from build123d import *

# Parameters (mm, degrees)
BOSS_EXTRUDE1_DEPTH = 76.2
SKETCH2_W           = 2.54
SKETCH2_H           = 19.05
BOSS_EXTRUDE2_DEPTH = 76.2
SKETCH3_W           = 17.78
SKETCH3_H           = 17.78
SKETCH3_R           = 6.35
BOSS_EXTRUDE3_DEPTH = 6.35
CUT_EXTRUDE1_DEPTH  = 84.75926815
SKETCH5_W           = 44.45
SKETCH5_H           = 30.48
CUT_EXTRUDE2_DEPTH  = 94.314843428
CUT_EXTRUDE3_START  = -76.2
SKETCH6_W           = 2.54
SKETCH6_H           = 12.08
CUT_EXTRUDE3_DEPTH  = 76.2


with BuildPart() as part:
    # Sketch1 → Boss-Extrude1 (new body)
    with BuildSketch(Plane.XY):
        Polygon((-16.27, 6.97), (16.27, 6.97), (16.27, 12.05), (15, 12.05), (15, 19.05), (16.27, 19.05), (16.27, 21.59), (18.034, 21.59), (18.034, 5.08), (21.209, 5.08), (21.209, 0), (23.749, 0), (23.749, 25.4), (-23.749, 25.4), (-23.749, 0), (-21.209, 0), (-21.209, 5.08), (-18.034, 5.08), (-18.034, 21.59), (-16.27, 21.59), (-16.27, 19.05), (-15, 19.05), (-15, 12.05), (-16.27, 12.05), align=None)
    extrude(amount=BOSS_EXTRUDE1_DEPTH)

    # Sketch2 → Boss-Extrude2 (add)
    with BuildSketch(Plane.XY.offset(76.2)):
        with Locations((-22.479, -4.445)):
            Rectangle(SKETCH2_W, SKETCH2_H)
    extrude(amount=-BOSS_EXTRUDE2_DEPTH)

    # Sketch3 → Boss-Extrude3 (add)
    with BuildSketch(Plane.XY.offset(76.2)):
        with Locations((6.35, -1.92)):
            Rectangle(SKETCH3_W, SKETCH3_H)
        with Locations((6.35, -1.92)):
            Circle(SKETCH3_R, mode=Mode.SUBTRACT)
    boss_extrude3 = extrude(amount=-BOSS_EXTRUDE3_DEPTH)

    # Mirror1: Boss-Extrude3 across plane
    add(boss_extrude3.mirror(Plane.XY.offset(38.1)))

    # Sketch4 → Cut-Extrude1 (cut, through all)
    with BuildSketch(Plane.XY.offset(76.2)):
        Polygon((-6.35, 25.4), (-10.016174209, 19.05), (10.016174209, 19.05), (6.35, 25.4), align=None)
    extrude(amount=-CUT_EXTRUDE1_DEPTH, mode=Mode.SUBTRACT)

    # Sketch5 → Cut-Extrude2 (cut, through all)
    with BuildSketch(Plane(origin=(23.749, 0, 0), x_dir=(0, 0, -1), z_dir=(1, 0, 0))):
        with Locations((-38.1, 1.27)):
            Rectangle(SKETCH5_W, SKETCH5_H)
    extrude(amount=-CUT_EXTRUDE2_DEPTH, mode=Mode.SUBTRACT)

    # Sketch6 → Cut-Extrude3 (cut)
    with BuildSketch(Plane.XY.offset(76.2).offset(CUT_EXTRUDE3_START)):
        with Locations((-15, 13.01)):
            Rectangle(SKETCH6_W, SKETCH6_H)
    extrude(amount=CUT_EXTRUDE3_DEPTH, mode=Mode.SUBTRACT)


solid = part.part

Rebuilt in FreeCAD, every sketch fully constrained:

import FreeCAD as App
import Part
import Sketcher
Q = App.Units.Quantity

doc = App.newDocument("Part")
params = doc.addObject("Spreadsheet::Sheet", "Params")
for row, (alias, value) in enumerate([
    ("sketch1_height", "1 in"),
    ("sketch1_width", "0.1 in"),
    ("sketch1_height2", "0.2 in"),
    ("sketch1_width2", "0.05 in"),
    ("sketch1_width3", "1.87 in"),
    ("pad1_length", "3 in"),
    ("sketch2_width", "0.1 in"),
    ("sketch2_height", "0.75 in"),
    ("pad2_length", "3 in"),
    ("sketch3_diameter", "0.5 in"),
    ("sketch3_width", "0.7 in"),
    ("pad3_length", "0.25 in"),
    ("sketch4_width", "0.5 in"),
    ("sketch5_width", "1.2 in"),
    ("sketch5_height", "1.75 in"),
    ("sketch6_width", "0.1 in"),
    ("pocket3_length", "3 in"),
], start=1):
    params.set(f"A{row}", alias)
    params.set(f"B{row}", "=" + value)
    params.setAlias(f"B{row}", alias)

body = doc.addObject("PartDesign::Body", "Body")

# Sketch on XY plane
sketch1 = body.newObject("Sketcher::SketchObject", "Sketch")
sketch1.AttachmentSupport = (doc.getObject("XY_Plane"), [""])
sketch1.MapMode = "FlatFace"
sketch1.addGeometry([
    Part.LineSegment(App.Vector(-16.3, 7, 0), App.Vector(16.3, 7, 0)),  # 0
    Part.LineSegment(App.Vector(16.3, 7, 0), App.Vector(16.3, 12.1, 0)),  # 1
    Part.LineSegment(App.Vector(16.3, 12.1, 0), App.Vector(15, 12.1, 0)),  # 2
    Part.LineSegment(App.Vector(15, 12.1, 0), App.Vector(15, 19.1, 0)),  # 3
    Part.LineSegment(App.Vector(15, 19.1, 0), App.Vector(16.3, 19.1, 0)),  # 4
    Part.LineSegment(App.Vector(16.3, 19.1, 0), App.Vector(16.3, 21.6, 0)),  # 5
    Part.LineSegment(App.Vector(16.3, 21.6, 0), App.Vector(18, 21.6, 0)),  # 6
    Part.LineSegment(App.Vector(18, 21.6, 0), App.Vector(18, 5.1, 0)),  # 7
    Part.LineSegment(App.Vector(18, 5.1, 0), App.Vector(21.2, 5.1, 0)),  # 8
    Part.LineSegment(App.Vector(21.2, 5.1, 0), App.Vector(21.2, 0, 0)),  # 9
    Part.LineSegment(App.Vector(21.2, 0, 0), App.Vector(23.7, 0, 0)),  # 10
    Part.LineSegment(App.Vector(23.7, 0, 0), App.Vector(23.7, 25.4, 0)),  # 11
    Part.LineSegment(App.Vector(23.7, 25.4, 0), App.Vector(-23.7, 25.4, 0)),  # 12
    Part.LineSegment(App.Vector(-23.7, 25.4, 0), App.Vector(-23.7, 0, 0)),  # 13
    Part.LineSegment(App.Vector(-23.7, 0, 0), App.Vector(-21.2, 0, 0)),  # 14
    Part.LineSegment(App.Vector(-21.2, 0, 0), App.Vector(-21.2, 5.1, 0)),  # 15
    Part.LineSegment(App.Vector(-21.2, 5.1, 0), App.Vector(-18, 5.1, 0)),  # 16
    Part.LineSegment(App.Vector(-18, 5.1, 0), App.Vector(-18, 21.6, 0)),  # 17
    Part.LineSegment(App.Vector(-18, 21.6, 0), App.Vector(-16.3, 21.6, 0)),  # 18
    Part.LineSegment(App.Vector(-16.3, 21.6, 0), App.Vector(-16.3, 19.1, 0)),  # 19
    Part.LineSegment(App.Vector(-16.3, 19.1, 0), App.Vector(-15, 19.1, 0)),  # 20
    Part.LineSegment(App.Vector(-15, 19.1, 0), App.Vector(-15, 12.1, 0)),  # 21
    Part.LineSegment(App.Vector(-15, 12.1, 0), App.Vector(-16.3, 12.1, 0)),  # 22
    Part.LineSegment(App.Vector(-16.3, 12.1, 0), App.Vector(-16.3, 7, 0)),  # 23
], False)
sketch1.addConstraint([
    Sketcher.Constraint("Coincident", 0, 2, 1, 1),
    Sketcher.Constraint("Coincident", 1, 2, 2, 1),
    Sketcher.Constraint("Coincident", 2, 2, 3, 1),
    Sketcher.Constraint("Coincident", 3, 2, 4, 1),
    Sketcher.Constraint("Coincident", 4, 2, 5, 1),
    Sketcher.Constraint("Coincident", 5, 2, 6, 1),
    Sketcher.Constraint("Coincident", 6, 2, 7, 1),
    Sketcher.Constraint("Coincident", 7, 2, 8, 1),
    Sketcher.Constraint("Coincident", 8, 2, 9, 1),
    Sketcher.Constraint("Coincident", 9, 2, 10, 1),
    Sketcher.Constraint("Coincident", 10, 2, 11, 1),
    Sketcher.Constraint("Coincident", 11, 2, 12, 1),
    Sketcher.Constraint("Coincident", 12, 2, 13, 1),
    Sketcher.Constraint("Coincident", 13, 2, 14, 1),
    Sketcher.Constraint("Coincident", 14, 2, 15, 1),
    Sketcher.Constraint("Coincident", 15, 2, 16, 1),
    Sketcher.Constraint("Coincident", 16, 2, 17, 1),
    Sketcher.Constraint("Coincident", 17, 2, 18, 1),
    Sketcher.Constraint("Coincident", 18, 2, 19, 1),
    Sketcher.Constraint("Coincident", 19, 2, 20, 1),
    Sketcher.Constraint("Coincident", 20, 2, 21, 1),
    Sketcher.Constraint("Coincident", 21, 2, 22, 1),
    Sketcher.Constraint("Coincident", 22, 2, 23, 1),
    Sketcher.Constraint("Coincident", 23, 2, 0, 1),
    Sketcher.Constraint("Horizontal", 0),
    Sketcher.Constraint("Vertical", 1),
    Sketcher.Constraint("Horizontal", 2),
    Sketcher.Constraint("Vertical", 3),
    Sketcher.Constraint("Horizontal", 4),
    Sketcher.Constraint("Vertical", 5),
    Sketcher.Constraint("Horizontal", 6),
    Sketcher.Constraint("Vertical", 7),
    Sketcher.Constraint("Horizontal", 8),
    Sketcher.Constraint("Vertical", 9),
    Sketcher.Constraint("Horizontal", 10),
    Sketcher.Constraint("Vertical", 11),
    Sketcher.Constraint("Horizontal", 12),
    Sketcher.Constraint("Vertical", 13),
    Sketcher.Constraint("Horizontal", 14),
    Sketcher.Constraint("Vertical", 15),
    Sketcher.Constraint("Horizontal", 16),
    Sketcher.Constraint("Vertical", 17),
    Sketcher.Constraint("Horizontal", 18),
    Sketcher.Constraint("Vertical", 19),
    Sketcher.Constraint("Horizontal", 20),
    Sketcher.Constraint("Vertical", 21),
    Sketcher.Constraint("Horizontal", 22),
    Sketcher.Constraint("Vertical", 23),
    Sketcher.Constraint("Symmetric", 10, 2, 13, 2, -1, 1),
    Sketcher.Constraint("Symmetric", 9, 2, 14, 2, -2),
    Sketcher.Constraint("Symmetric", 7, 2, 16, 2, -2),
    Sketcher.Constraint("Symmetric", 5, 2, 18, 2, -2),
    Sketcher.Constraint("Symmetric", 3, 2, 20, 2, -2),
    Sketcher.Constraint("Symmetric", 1, 2, 22, 2, -2),
    Sketcher.Constraint("Vertical", 1, 2, 4, 2),
    Sketcher.Constraint("Equal", 14, 5),
    Sketcher.Constraint("Equal", 1, 9),
    Sketcher.Constraint("DistanceY", 11, 1, 11, 2, Q("1 in")),
    Sketcher.Constraint("DistanceX", 10, 1, 10, 2, Q("0.1 in")),
    Sketcher.Constraint("DistanceY", 1, 1, 1, 2, Q("0.2 in")),
    Sketcher.Constraint("DistanceX", 2, 2, 2, 1, Q("0.05 in")),
    Sketcher.Constraint("DistanceX", 12, 2, 12, 1, Q("1.87 in")),
    Sketcher.Constraint("DistanceY", 7, 2, 7, 1, Q("0.65 in")),
    Sketcher.Constraint("DistanceX", 8, 1, 8, 2, Q("0.125 in")),
    Sketcher.Constraint("DistanceX", 0, 1, 0, 2, Q("32.54 mm")),
    Sketcher.Constraint("DistanceY", 3, 1, 3, 2, Q("7 mm")),
])
sketch1.setExpression("Constraints[57]", "Params.sketch1_height")
sketch1.setExpression("Constraints[58]", "Params.sketch1_width")
sketch1.setExpression("Constraints[59]", "Params.sketch1_height2")
sketch1.setExpression("Constraints[60]", "Params.sketch1_width2")
sketch1.setExpression("Constraints[61]", "Params.sketch1_width3")
pad1 = body.newObject("PartDesign::Pad", "Pad")
pad1.Profile = sketch1
pad1.setExpression("Length", "Params.pad1_length")

# Sketch on XY plane
sketch2 = body.newObject("Sketcher::SketchObject", "Sketch001")
sketch2.AttachmentSupport = (doc.getObject("XY_Plane"), [""])
sketch2.MapMode = "FlatFace"
sketch2.AttachmentOffset = App.Placement(App.Vector(0, 0, 3 * 25.4), App.Rotation())
sketch2.addGeometry([
    Part.LineSegment(App.Vector(-23.7, 5.1, 0), App.Vector(-23.7, -14, 0)),
    Part.LineSegment(App.Vector(-23.7, -14, 0), App.Vector(-21.2, -14, 0)),
    Part.LineSegment(App.Vector(-21.2, -14, 0), App.Vector(-21.2, 5.1, 0)),
    Part.LineSegment(App.Vector(-21.2, 5.1, 0), App.Vector(-23.7, 5.1, 0)),
], False)
sketch2.addConstraint([
    Sketcher.Constraint("Coincident", 0, 2, 1, 1),
    Sketcher.Constraint("Coincident", 1, 2, 2, 1),
    Sketcher.Constraint("Coincident", 2, 2, 3, 1),
    Sketcher.Constraint("Coincident", 3, 2, 0, 1),
    Sketcher.Constraint("Vertical", 0),
    Sketcher.Constraint("Horizontal", 1),
    Sketcher.Constraint("Vertical", 2),
    Sketcher.Constraint("Horizontal", 3),
    Sketcher.Constraint("DistanceX", 1, 1, 1, 2, Q("0.1 in")),
    Sketcher.Constraint("DistanceY", 0, 2, 0, 1, Q("0.75 in")),
    Sketcher.Constraint("DistanceY", -1, 1, 2, 2, Q("0.2 in")),
    Sketcher.Constraint("DistanceX", 0, 2, -1, 1, Q("0.935 in")),
])
sketch2.setExpression("Constraints[8]", "Params.sketch2_width")
sketch2.setExpression("Constraints[9]", "Params.sketch2_height")
pad2 = body.newObject("PartDesign::Pad", "Pad001")
pad2.Profile = sketch2
pad2.setExpression("Length", "Params.pad2_length")
pad2.Reversed = True

# Sketch on XY plane
sketch3 = body.newObject("Sketcher::SketchObject", "Sketch002")
sketch3.AttachmentSupport = (doc.getObject("XY_Plane"), [""])
sketch3.MapMode = "FlatFace"
sketch3.AttachmentOffset = App.Placement(App.Vector(0, 0, 3 * 25.4), App.Rotation())
sketch3.addGeometry([
    Part.LineSegment(App.Vector(-3, 7, 0), App.Vector(-3, -11, 0)),  # 0
    Part.LineSegment(App.Vector(-3, -11, 0), App.Vector(15, -11, 0)),  # 1
    Part.LineSegment(App.Vector(15, -11, 0), App.Vector(15, 7, 0)),  # 2
    Part.LineSegment(App.Vector(15, 7, 0), App.Vector(-3, 7, 0)),  # 3
    Part.Circle(App.Vector(6, -2, 0), App.Vector(0, 0, 1), 6),  # 4
], False)
sketch3.addConstraint([
    Sketcher.Constraint("Coincident", 0, 2, 1, 1),
    Sketcher.Constraint("Coincident", 1, 2, 2, 1),
    Sketcher.Constraint("Coincident", 2, 2, 3, 1),
    Sketcher.Constraint("Coincident", 3, 2, 0, 1),
    Sketcher.Constraint("Vertical", 0),
    Sketcher.Constraint("Horizontal", 1),
    Sketcher.Constraint("Vertical", 2),
    Sketcher.Constraint("Horizontal", 3),
    Sketcher.Constraint("Equal", 3, 0),
    Sketcher.Constraint("Diameter", 4, Q("0.5 in")),
    Sketcher.Constraint("DistanceX", 1, 1, 1, 2, Q("0.7 in")),
    Sketcher.Constraint("DistanceX", 0, 2, -1, 1, Q("0.1 in")),
    Sketcher.Constraint("DistanceX", -1, 1, 4, 3, Q("0.25 in")),
    Sketcher.Constraint("DistanceY", 0, 2, 4, 3, Q("0.35 in")),
    Sketcher.Constraint("DistanceY", 4, 3, -1, 1, Q("1.92 mm")),
])
sketch3.setExpression("Constraints[9]", "Params.sketch3_diameter")
sketch3.setExpression("Constraints[10]", "Params.sketch3_width")
pad3 = body.newObject("PartDesign::Pad", "Pad002")
pad3.Profile = sketch3
pad3.setExpression("Length", "Params.pad3_length")
pad3.Reversed = True
doc.recompute()

datumplane = body.newObject("PartDesign::Plane", "DatumPlane")
datumplane.AttachmentSupport = (doc.getObject("XY_Plane"), [""])
datumplane.MapMode = "FlatFace"
datumplane.AttachmentOffset = App.Placement(App.Vector(0, 0, 1.5 * 25.4), App.Rotation())
mirrored = body.newObject("PartDesign::Mirrored", "Mirrored")
mirrored.Originals = [pad3]
mirrored.MirrorPlane = (datumplane, [""])
body.Tip = mirrored

# Sketch on XY plane
sketch4 = body.newObject("Sketcher::SketchObject", "Sketch003")
sketch4.AttachmentSupport = (doc.getObject("XY_Plane"), [""])
sketch4.MapMode = "FlatFace"
sketch4.AttachmentOffset = App.Placement(App.Vector(0, 0, 3 * 25.4), App.Rotation())
sketch4.addGeometry([
    Part.LineSegment(App.Vector(-6, 25, 0), App.Vector(-10, 19, 0)),
    Part.LineSegment(App.Vector(-10, 19, 0), App.Vector(10, 19, 0)),
    Part.LineSegment(App.Vector(10, 19, 0), App.Vector(6, 25, 0)),
    Part.LineSegment(App.Vector(6, 25, 0), App.Vector(-6, 25, 0)),
], False)
sketch4.addConstraint([
    Sketcher.Constraint("Coincident", 0, 2, 1, 1),
    Sketcher.Constraint("Coincident", 1, 2, 2, 1),
    Sketcher.Constraint("Coincident", 2, 2, 3, 1),
    Sketcher.Constraint("Coincident", 3, 2, 0, 1),
    Sketcher.Constraint("Horizontal", 1),
    Sketcher.Constraint("Horizontal", 3),
    Sketcher.Constraint("Equal", 0, 2),
    Sketcher.Constraint("DistanceX", 3, 2, 3, 1, Q("0.5 in")),
    Sketcher.Constraint("DistanceY", -1, 1, 2, 2, Q("1 in")),
    Sketcher.Constraint("Angle", 0, Q("-120 deg")),
    Sketcher.Constraint("DistanceY", -1, 1, 0, 2, Q("0.75 in")),
    Sketcher.Constraint("DistanceX", -1, 1, 2, 2, Q("0.25 in")),
])
sketch4.setExpression("Constraints[7]", "Params.sketch4_width")
pocket1 = body.newObject("PartDesign::Pocket", "Pocket")
pocket1.Profile = sketch4
pocket1.Type = "ThroughAll"

# Sketch on YZ plane
sketch5 = body.newObject("Sketcher::SketchObject", "Sketch004")
sketch5.AttachmentSupport = (doc.getObject("YZ_Plane"), [""])
sketch5.MapMode = "FlatFace"
sketch5.AttachmentOffset = App.Placement(App.Vector(0, 0, 0.935 * 25.4), App.Rotation())
sketch5.addGeometry([
    Part.LineSegment(App.Vector(17, 60, 0), App.Vector(-14, 60, 0)),
    Part.LineSegment(App.Vector(-14, 60, 0), App.Vector(-14, 16, 0)),
    Part.LineSegment(App.Vector(-14, 16, 0), App.Vector(17, 16, 0)),
    Part.LineSegment(App.Vector(17, 16, 0), App.Vector(17, 60, 0)),
], False)
sketch5.addConstraint([
    Sketcher.Constraint("Coincident", 0, 2, 1, 1),
    Sketcher.Constraint("Coincident", 1, 2, 2, 1),
    Sketcher.Constraint("Coincident", 2, 2, 3, 1),
    Sketcher.Constraint("Coincident", 3, 2, 0, 1),
    Sketcher.Constraint("Horizontal", 0),
    Sketcher.Constraint("Vertical", 1),
    Sketcher.Constraint("Horizontal", 2),
    Sketcher.Constraint("Vertical", 3),
    Sketcher.Constraint("DistanceX", 0, 2, 0, 1, Q("1.2 in")),
    Sketcher.Constraint("DistanceY", 1, 2, 1, 1, Q("1.75 in")),
    Sketcher.Constraint("DistanceX", 0, 2, -1, 1, Q("0.55 in")),
    Sketcher.Constraint("DistanceY", -1, 1, 0, 2, Q("2.375 in")),
])
sketch5.setExpression("Constraints[8]", "Params.sketch5_width")
sketch5.setExpression("Constraints[9]", "Params.sketch5_height")
pocket2 = body.newObject("PartDesign::Pocket", "Pocket001")
pocket2.Profile = sketch5
pocket2.Type = "ThroughAll"

# Sketch on XY plane
sketch6 = body.newObject("Sketcher::SketchObject", "Sketch005")
sketch6.AttachmentSupport = (doc.getObject("XY_Plane"), [""])
sketch6.MapMode = "FlatFace"
sketch6.addGeometry([
    Part.LineSegment(App.Vector(-16.3, 19.1, 0), App.Vector(-16.3, 7, 0)),
    Part.LineSegment(App.Vector(-16.3, 7, 0), App.Vector(-13.7, 7, 0)),
    Part.LineSegment(App.Vector(-13.7, 7, 0), App.Vector(-13.7, 19.1, 0)),
    Part.LineSegment(App.Vector(-13.7, 19.1, 0), App.Vector(-16.3, 19.1, 0)),
], False)
sketch6.addConstraint([
    Sketcher.Constraint("Coincident", 0, 2, 1, 1),
    Sketcher.Constraint("Coincident", 1, 2, 2, 1),
    Sketcher.Constraint("Coincident", 2, 2, 3, 1),
    Sketcher.Constraint("Coincident", 3, 2, 0, 1),
    Sketcher.Constraint("Vertical", 0),
    Sketcher.Constraint("Horizontal", 1),
    Sketcher.Constraint("Vertical", 2),
    Sketcher.Constraint("Horizontal", 3),
    Sketcher.Constraint("DistanceX", 1, 1, 1, 2, Q("0.1 in")),
    Sketcher.Constraint("DistanceY", -1, 1, 2, 2, Q("0.75 in")),
    Sketcher.Constraint("DistanceY", 0, 2, 0, 1, Q("12.08 mm")),
    Sketcher.Constraint("DistanceX", 0, 2, -1, 1, Q("16.27 mm")),
])
sketch6.setExpression("Constraints[8]", "Params.sketch6_width")
pocket3 = body.newObject("PartDesign::Pocket", "Pocket002")
pocket3.Profile = sketch6
pocket3.setExpression("Length", "Params.pocket3_length")
pocket3.Reversed = True

doc.recompute()
